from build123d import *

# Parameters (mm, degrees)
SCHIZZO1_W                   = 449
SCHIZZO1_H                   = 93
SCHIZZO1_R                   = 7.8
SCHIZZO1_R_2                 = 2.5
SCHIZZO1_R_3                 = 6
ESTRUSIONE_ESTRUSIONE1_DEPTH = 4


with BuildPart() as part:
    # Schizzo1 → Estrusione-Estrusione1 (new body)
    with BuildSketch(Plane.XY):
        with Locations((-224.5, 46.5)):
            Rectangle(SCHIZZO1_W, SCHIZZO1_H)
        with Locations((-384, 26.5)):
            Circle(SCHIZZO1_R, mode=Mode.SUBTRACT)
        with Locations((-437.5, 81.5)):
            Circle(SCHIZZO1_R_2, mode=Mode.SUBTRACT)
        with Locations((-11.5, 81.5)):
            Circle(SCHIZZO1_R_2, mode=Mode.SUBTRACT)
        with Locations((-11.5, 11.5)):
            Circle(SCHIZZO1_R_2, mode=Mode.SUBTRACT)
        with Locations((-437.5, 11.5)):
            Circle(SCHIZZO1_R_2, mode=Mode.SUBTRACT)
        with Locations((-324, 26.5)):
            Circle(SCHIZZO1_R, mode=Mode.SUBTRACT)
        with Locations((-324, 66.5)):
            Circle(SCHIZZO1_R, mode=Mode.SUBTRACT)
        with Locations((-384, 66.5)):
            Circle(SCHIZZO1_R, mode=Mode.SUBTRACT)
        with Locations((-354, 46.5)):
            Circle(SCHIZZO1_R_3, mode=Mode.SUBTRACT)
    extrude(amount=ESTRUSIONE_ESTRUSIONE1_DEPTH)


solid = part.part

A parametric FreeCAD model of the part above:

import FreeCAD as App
import Part
import Sketcher

V = App.Vector
Q = App.Units.Quantity


def add_polygon(sketch, points):
    """Adds a closed chain of lines whose ends are joined by coincident constraints."""
    first, n = sketch.GeometryCount, len(points)
    for a, b in zip(points, points[1:] + points[:1]):
        sketch.addGeometry(Part.LineSegment(App.Vector(*a, 0), App.Vector(*b, 0)), False)
    for i in range(n):
        sketch.addConstraint(Sketcher.Constraint("Coincident", first + i, 2, first + (i + 1) % n, 1))

doc = App.newDocument("Part")
body = doc.addObject("PartDesign::Body", "Body")

sketch1 = doc.addObject("Sketcher::SketchObject", "Sketch")
body.addObject(sketch1)
sketch1.AttachmentSupport = (doc.XY_Plane, [""])
sketch1.MapMode = "FlatFace"
add_polygon(sketch1, [(-449, 93), (-449, 0), (0, 0), (0, 93)])
sketch1.addGeometry(Part.Circle(V(-437.5, 11.5, 0), V(0, 0, 1), 2.5), False)
sketch1.addGeometry(Part.Circle(V(-384, 26.5, 0), V(0, 0, 1), 7.8), False)
sketch1.addGeometry(Part.Circle(V(-324, 26.5, 0), V(0, 0, 1), 7.8), False)
sketch1.addGeometry(Part.Circle(V(-11.5, 11.5, 0), V(0, 0, 1), 2.5), False)
sketch1.addGeometry(Part.Circle(V(-354, 46.5, 0), V(0, 0, 1), 6), False)
sketch1.addGeometry(Part.Circle(V(-384, 66.5, 0), V(0, 0, 1), 7.8), False)
sketch1.addGeometry(Part.Circle(V(-437.5, 81.5, 0), V(0, 0, 1), 2.5), False)
sketch1.addGeometry(Part.Circle(V(-324, 66.5, 0), V(0, 0, 1), 7.8), False)
sketch1.addGeometry(Part.Circle(V(-11.5, 81.5, 0), V(0, 0, 1), 2.5), False)
sketch1.addConstraint([
    Sketcher.Constraint("Vertical", 0),
    Sketcher.Constraint("Horizontal", 1),
    Sketcher.Constraint("Vertical", 2),
    Sketcher.Constraint("Horizontal", 3),
    Sketcher.Constraint("Coincident", 1, 2, -1, 1),
    Sketcher.Constraint("Equal", 5, 6),
    Sketcher.Constraint("Equal", 4, 7),
    Sketcher.Constraint("Equal", 6, 9),
    Sketcher.Constraint("Equal", 7, 10),
    Sketcher.Constraint("Equal", 9, 11),
    Sketcher.Constraint("Equal", 10, 12),
    Sketcher.Constraint("Horizontal", 5, 3, 6, 3),
    Sketcher.Constraint("Horizontal", 4, 3, 7, 3),
    Sketcher.Constraint("Horizontal", 9, 3, 11, 3),
    Sketcher.Constraint("Horizontal", 10, 3, 12, 3),
    Sketcher.Constraint("Vertical", 5, 3, 9, 3),
    Sketcher.Constraint("Vertical", 4, 3, 10, 3),
    Sketcher.Constraint("Vertical", 6, 3, 11, 3),
    Sketcher.Constraint("Vertical", 7, 3, 12, 3),
    Sketcher.Constraint("Diameter", 4, Q("5 mm")),
    Sketcher.Constraint("Diameter", 8, Q("12 mm")),
    Sketcher.Constraint("Diameter", 5, Q("15.6 mm")),
    Sketcher.Constraint("DistanceX", 1, 1, 1, 2, Q("449 mm")),
    Sketcher.Constraint("DistanceY", 0, 2, 0, 1, Q("93 mm")),
    Sketcher.Constraint("DistanceX", 5, 3, -1, 1, Q("384 mm")),
    Sketcher.Constraint("DistanceX", 6, 3, -1, 1, Q("324 mm")),
    Sketcher.Constraint("DistanceX", 8, 3, -1, 1, Q("354 mm")),
    Sketcher.Constraint("DistanceY", 4, 3, 5, 3, Q("15 mm")),
    Sketcher.Constraint("DistanceX", 4, 3, 7, 3, Q("426 mm")),
    Sketcher.Constraint("DistanceY", 5, 3, 8, 3, Q("20 mm")),
    Sketcher.Constraint("DistanceY", 8, 3, 9, 3, Q("20 mm")),
    Sketcher.Constraint("DistanceY", 9, 3, 10, 3, Q("15 mm")),
    Sketcher.Constraint("DistanceX", 4, 3, -1, 1, Q("437.5 mm")),
    Sketcher.Constraint("DistanceY", -1, 1, 4, 3, Q("11.5 mm")),
])
pad1 = doc.addObject("PartDesign::Pad", "Pad")
body.addObject(pad1)
pad1.Profile = sketch1
pad1.Length = 4

doc.recompute()
